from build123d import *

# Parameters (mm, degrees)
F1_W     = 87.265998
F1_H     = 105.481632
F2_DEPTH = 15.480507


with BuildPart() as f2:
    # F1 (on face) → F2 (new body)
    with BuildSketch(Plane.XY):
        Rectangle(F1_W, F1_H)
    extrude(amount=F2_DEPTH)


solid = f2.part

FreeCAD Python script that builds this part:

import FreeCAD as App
import Part
import Sketcher
Q = App.Units.Quantity


def add_polygon(sketch, points):
    """Adds a closed chain of lines whose ends are joined by coincident constraints."""
    first, n = sketch.GeometryCount, len(points)
    for a, b in zip(points, points[1:] + points[:1]):
        sketch.addGeometry(Part.LineSegment(App.Vector(*a, 0), App.Vector(*b, 0)), False)
    for i in range(n):
        sketch.addConstraint(Sketcher.Constraint("Coincident", first + i, 2, first + (i + 1) % n, 1))

doc = App.newDocument("Part")
params = doc.addObject("Spreadsheet::Sheet", "Params")
for row, (alias, value) in enumerate([
    ("pad1_length", "15.480507 mm"),
], start=1):
    params.set(f"A{row}", alias)
    params.set(f"B{row}", "=" + value)
    params.setAlias(f"B{row}", alias)

body = doc.addObject("PartDesign::Body", "Body")

sketch1 = body.newObject("Sketcher::SketchObject", "Sketch")
sketch1.AttachmentSupport = (doc.getObject("XY_Plane"), [""])
sketch1.MapMode = "FlatFace"
add_polygon(sketch1, [(-44, 53), (-44, -53), (44, -53), (44, 53)])
sketch1.addConstraint([
    Sketcher.Constraint("Vertical", 0),
    Sketcher.Constraint("Horizontal", 1),
    Sketcher.Constraint("Vertical", 2),
    Sketcher.Constraint("Horizontal", 3),
    Sketcher.Constraint("Symmetric", 0, 2, 2, 2, -1, 1),
    Sketcher.Constraint("DistanceX", 0, 2, -1, 1, Q("43.632999 mm")),
    Sketcher.Constraint("DistanceY", 0, 2, 0, 1, Q("105.481632 mm")),
])
pad1 = body.newObject("PartDesign::Pad", "Pad")
pad1.Profile = sketch1
pad1.setExpression("Length", "Params.pad1_length")

doc.recompute()
